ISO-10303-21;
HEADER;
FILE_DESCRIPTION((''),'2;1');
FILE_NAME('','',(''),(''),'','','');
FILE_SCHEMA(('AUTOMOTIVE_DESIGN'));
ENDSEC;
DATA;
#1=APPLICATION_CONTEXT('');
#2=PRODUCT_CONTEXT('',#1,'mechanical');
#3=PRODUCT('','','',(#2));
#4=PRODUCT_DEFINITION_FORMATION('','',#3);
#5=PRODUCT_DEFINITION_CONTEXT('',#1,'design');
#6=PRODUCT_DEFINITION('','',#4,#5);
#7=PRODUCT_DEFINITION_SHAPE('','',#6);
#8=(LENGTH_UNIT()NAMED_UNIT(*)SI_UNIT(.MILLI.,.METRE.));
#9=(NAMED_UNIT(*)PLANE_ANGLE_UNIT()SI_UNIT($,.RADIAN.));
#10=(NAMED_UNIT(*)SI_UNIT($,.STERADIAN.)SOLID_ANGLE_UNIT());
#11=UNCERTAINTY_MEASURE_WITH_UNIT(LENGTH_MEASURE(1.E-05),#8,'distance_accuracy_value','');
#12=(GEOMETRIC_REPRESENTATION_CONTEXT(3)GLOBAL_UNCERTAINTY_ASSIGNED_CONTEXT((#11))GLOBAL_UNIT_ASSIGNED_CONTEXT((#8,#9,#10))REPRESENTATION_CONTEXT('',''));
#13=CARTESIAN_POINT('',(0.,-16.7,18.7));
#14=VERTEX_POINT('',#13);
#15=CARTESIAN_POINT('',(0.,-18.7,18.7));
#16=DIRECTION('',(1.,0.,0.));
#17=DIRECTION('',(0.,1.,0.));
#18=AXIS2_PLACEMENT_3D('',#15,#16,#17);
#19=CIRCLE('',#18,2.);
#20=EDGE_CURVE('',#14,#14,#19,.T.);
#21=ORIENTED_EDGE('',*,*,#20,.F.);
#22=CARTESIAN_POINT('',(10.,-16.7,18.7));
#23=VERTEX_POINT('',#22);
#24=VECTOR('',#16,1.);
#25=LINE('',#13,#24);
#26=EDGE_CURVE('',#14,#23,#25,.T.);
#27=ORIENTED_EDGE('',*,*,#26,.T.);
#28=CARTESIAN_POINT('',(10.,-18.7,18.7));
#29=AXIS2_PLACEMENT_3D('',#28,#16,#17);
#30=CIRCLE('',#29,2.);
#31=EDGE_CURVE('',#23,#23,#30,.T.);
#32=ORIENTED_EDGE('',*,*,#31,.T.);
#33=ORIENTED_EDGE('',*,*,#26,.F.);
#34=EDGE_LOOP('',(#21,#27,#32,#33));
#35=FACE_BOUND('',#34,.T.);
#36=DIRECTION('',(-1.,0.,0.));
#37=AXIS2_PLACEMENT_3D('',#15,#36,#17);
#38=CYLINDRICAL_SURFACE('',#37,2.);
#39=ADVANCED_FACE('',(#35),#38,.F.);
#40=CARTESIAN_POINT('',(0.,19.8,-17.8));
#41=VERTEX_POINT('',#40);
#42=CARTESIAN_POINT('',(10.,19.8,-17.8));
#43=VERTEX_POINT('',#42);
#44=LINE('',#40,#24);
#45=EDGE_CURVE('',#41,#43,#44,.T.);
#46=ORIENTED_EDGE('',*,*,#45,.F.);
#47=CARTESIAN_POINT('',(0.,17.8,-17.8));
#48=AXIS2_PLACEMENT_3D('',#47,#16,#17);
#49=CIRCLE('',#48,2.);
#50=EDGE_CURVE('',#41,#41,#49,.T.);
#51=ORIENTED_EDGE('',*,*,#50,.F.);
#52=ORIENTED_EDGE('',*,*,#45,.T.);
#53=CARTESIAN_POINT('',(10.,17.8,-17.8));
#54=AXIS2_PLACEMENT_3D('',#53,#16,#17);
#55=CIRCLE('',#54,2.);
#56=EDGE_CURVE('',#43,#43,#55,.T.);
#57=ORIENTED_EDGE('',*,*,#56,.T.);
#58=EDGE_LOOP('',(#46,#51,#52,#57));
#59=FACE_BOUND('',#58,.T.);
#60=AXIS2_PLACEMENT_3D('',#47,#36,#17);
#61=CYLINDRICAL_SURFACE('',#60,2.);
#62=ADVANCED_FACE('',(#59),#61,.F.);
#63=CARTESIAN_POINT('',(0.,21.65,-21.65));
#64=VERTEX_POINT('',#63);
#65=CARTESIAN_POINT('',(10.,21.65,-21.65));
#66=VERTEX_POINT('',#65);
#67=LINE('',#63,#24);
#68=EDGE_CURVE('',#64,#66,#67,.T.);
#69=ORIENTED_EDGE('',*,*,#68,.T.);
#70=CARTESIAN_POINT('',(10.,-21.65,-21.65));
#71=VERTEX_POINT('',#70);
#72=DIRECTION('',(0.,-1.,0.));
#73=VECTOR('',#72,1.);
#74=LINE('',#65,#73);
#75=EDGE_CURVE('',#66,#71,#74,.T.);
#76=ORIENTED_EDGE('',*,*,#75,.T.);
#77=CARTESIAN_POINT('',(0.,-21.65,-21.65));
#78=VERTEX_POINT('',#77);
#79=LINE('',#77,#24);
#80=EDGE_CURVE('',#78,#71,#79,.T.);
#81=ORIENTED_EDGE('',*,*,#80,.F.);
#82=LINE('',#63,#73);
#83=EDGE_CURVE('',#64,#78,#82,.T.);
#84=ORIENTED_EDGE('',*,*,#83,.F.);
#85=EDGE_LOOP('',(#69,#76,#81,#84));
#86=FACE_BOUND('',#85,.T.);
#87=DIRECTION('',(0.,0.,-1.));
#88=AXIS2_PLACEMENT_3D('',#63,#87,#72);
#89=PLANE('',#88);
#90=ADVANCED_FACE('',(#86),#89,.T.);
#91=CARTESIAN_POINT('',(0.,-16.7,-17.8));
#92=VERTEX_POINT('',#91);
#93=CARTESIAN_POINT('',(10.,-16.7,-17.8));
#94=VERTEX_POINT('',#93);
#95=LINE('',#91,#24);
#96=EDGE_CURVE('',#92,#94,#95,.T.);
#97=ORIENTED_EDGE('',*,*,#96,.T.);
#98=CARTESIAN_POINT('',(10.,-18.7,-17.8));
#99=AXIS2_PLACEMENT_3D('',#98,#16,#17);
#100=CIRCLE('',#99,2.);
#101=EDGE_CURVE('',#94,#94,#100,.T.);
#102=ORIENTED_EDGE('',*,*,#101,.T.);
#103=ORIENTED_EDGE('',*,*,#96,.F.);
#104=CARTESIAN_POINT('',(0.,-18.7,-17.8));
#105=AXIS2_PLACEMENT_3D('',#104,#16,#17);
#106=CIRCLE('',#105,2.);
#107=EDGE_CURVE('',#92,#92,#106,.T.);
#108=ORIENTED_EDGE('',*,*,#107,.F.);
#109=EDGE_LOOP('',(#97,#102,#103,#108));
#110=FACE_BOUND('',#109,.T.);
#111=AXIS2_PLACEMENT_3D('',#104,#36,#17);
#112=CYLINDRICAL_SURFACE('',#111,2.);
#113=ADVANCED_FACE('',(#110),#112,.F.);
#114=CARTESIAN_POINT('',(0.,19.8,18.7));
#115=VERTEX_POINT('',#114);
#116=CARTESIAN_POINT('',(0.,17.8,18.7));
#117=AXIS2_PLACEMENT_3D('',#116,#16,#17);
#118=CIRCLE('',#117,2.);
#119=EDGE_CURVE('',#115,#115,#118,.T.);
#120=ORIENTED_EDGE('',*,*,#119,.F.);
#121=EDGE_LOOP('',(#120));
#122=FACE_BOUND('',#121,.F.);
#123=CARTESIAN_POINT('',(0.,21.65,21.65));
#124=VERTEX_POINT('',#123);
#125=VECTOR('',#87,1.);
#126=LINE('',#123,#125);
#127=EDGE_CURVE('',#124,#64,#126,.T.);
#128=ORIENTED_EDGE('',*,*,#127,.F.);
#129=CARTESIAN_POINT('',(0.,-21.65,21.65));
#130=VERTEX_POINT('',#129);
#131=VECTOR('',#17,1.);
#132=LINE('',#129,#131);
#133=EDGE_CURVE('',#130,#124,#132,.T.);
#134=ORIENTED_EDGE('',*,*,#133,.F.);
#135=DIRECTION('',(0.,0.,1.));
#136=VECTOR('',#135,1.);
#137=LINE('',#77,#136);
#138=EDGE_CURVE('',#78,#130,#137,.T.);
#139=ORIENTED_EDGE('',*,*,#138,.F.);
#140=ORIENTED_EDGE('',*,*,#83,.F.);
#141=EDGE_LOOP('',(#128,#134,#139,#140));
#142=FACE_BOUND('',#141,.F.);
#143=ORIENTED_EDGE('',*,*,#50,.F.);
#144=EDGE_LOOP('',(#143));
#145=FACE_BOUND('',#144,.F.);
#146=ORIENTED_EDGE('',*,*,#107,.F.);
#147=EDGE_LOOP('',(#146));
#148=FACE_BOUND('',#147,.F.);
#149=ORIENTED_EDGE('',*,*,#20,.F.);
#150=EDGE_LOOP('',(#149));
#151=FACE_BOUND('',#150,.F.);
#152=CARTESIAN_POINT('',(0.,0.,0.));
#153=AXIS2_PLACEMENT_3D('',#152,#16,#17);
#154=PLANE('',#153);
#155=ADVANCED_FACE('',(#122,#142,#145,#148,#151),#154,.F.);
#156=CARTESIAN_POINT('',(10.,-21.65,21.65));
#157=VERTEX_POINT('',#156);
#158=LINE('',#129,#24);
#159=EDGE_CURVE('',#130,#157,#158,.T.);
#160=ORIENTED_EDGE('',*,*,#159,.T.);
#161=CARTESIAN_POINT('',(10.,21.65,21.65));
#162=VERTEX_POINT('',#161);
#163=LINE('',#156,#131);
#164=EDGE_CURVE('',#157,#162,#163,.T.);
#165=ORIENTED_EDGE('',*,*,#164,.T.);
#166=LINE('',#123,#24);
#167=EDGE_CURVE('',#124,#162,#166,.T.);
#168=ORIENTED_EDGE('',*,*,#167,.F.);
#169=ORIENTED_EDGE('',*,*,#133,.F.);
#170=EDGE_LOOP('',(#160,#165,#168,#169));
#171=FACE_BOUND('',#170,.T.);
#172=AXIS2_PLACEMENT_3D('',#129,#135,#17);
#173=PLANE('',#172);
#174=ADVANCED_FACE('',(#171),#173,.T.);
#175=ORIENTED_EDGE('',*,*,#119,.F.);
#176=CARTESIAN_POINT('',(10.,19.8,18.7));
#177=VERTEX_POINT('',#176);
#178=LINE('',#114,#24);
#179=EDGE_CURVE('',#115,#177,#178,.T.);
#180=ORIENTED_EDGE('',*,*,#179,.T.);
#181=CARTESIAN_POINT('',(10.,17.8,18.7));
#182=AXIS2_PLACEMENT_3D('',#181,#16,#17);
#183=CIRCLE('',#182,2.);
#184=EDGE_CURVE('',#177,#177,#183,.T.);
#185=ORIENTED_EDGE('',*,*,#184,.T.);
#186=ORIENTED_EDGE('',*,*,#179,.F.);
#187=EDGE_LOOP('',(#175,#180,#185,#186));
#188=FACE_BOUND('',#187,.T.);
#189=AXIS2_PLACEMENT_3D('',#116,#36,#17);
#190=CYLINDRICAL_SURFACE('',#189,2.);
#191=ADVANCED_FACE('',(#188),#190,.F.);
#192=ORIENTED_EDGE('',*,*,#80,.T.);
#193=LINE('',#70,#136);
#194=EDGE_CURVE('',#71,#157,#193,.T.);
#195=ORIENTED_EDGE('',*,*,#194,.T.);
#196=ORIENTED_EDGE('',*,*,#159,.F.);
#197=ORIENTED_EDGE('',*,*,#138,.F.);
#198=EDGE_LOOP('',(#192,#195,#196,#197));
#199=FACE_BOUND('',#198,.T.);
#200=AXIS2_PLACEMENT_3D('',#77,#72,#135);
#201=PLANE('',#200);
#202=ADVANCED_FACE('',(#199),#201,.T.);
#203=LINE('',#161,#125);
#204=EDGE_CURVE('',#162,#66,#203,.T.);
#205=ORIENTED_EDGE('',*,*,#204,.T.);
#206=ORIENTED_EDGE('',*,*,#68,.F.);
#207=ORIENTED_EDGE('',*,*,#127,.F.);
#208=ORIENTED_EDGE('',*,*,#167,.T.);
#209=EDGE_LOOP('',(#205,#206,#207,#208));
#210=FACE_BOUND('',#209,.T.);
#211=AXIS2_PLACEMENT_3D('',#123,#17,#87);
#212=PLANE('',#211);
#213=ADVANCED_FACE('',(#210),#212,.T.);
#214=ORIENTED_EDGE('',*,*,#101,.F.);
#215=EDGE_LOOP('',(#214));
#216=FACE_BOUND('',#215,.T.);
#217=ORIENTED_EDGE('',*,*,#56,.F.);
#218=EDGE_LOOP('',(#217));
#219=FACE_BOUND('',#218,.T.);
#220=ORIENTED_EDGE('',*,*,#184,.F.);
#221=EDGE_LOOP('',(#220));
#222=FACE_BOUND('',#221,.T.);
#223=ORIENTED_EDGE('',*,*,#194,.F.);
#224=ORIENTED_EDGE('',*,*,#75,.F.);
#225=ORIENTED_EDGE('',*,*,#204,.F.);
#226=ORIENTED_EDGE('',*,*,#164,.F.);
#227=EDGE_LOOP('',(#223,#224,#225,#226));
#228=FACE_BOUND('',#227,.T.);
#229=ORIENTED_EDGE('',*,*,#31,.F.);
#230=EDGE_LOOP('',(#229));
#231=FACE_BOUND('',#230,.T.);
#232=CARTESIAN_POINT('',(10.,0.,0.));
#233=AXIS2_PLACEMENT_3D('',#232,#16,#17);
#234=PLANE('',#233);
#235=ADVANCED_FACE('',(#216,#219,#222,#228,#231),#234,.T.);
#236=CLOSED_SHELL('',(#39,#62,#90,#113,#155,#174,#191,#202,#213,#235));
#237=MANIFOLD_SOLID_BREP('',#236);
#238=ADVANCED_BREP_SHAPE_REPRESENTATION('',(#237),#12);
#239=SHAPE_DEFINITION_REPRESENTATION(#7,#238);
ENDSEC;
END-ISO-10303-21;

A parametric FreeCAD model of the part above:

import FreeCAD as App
import Part
import Sketcher
Q = App.Units.Quantity

doc = App.newDocument("Part")
body = doc.addObject("PartDesign::Body", "Body")

sketch1 = body.newObject("Sketcher::SketchObject", "Sketch")
sketch1.AttachmentSupport = (doc.getObject("YZ_Plane"), [""])
sketch1.MapMode = "FlatFace"
sketch1.addGeometry([
    Part.LineSegment(App.Vector(21.65, 21.65, 0), App.Vector(-21.65, 21.65, 0)),
    Part.LineSegment(App.Vector(-21.65, 21.65, 0), App.Vector(-21.65, -21.65, 0)),
    Part.LineSegment(App.Vector(-21.65, -21.65, 0), App.Vector(21.65, -21.65, 0)),
    Part.LineSegment(App.Vector(21.65, -21.65, 0), App.Vector(21.65, 21.65, 0)),
    Part.Circle(App.Vector(-18.7, -17.8, 0), App.Vector(0, 0, 1), 2),
    Part.Circle(App.Vector(17.8, -17.8, 0), App.Vector(0, 0, 1), 2),
    Part.Circle(App.Vector(-18.7, 18.7, 0), App.Vector(0, 0, 1), 2),
    Part.Circle(App.Vector(17.8, 18.7, 0), App.Vector(0, 0, 1), 2),
], False)
sketch1.addConstraint([
    Sketcher.Constraint("Coincident", 0, 2, 1, 1),
    Sketcher.Constraint("Coincident", 1, 2, 2, 1),
    Sketcher.Constraint("Coincident", 2, 2, 3, 1),
    Sketcher.Constraint("Coincident", 3, 2, 0, 1),
    Sketcher.Constraint("Horizontal", 0),
    Sketcher.Constraint("Vertical", 1),
    Sketcher.Constraint("Horizontal", 2),
    Sketcher.Constraint("Vertical", 3),
    Sketcher.Constraint("Equal", 4, 5),
    Sketcher.Constraint("Equal", 5, 6),
    Sketcher.Constraint("Equal", 6, 7),
    Sketcher.Constraint("Symmetric", 0, 2, 2, 2, -1, 1),
    Sketcher.Constraint("Horizontal", 4, 3, 5, 3),
    Sketcher.Constraint("Horizontal", 6, 3, 7, 3),
    Sketcher.Constraint("Vertical", 4, 3, 6, 3),
    Sketcher.Constraint("Vertical", 5, 3, 7, 3),
    Sketcher.Constraint("Equal", 2, 1),
    Sketcher.Constraint("Diameter", 4, Q("4 mm")),
    Sketcher.Constraint("DistanceX", 0, 2, 0, 1, Q("43.3 mm")),
    Sketcher.Constraint("DistanceY", 4, 3, -1, 1, Q("17.8 mm")),
    Sketcher.Constraint("DistanceX", -1, 1, 5, 3, Q("17.8 mm")),
    Sketcher.Constraint("DistanceX", 4, 3, 5, 3, Q("36.5 mm")),
    Sketcher.Constraint("DistanceY", 4, 3, 6, 3, Q("36.5 mm")),
])
pad1 = body.newObject("PartDesign::Pad", "Pad")
pad1.Profile = sketch1
pad1.Length = 10

doc.recompute()
